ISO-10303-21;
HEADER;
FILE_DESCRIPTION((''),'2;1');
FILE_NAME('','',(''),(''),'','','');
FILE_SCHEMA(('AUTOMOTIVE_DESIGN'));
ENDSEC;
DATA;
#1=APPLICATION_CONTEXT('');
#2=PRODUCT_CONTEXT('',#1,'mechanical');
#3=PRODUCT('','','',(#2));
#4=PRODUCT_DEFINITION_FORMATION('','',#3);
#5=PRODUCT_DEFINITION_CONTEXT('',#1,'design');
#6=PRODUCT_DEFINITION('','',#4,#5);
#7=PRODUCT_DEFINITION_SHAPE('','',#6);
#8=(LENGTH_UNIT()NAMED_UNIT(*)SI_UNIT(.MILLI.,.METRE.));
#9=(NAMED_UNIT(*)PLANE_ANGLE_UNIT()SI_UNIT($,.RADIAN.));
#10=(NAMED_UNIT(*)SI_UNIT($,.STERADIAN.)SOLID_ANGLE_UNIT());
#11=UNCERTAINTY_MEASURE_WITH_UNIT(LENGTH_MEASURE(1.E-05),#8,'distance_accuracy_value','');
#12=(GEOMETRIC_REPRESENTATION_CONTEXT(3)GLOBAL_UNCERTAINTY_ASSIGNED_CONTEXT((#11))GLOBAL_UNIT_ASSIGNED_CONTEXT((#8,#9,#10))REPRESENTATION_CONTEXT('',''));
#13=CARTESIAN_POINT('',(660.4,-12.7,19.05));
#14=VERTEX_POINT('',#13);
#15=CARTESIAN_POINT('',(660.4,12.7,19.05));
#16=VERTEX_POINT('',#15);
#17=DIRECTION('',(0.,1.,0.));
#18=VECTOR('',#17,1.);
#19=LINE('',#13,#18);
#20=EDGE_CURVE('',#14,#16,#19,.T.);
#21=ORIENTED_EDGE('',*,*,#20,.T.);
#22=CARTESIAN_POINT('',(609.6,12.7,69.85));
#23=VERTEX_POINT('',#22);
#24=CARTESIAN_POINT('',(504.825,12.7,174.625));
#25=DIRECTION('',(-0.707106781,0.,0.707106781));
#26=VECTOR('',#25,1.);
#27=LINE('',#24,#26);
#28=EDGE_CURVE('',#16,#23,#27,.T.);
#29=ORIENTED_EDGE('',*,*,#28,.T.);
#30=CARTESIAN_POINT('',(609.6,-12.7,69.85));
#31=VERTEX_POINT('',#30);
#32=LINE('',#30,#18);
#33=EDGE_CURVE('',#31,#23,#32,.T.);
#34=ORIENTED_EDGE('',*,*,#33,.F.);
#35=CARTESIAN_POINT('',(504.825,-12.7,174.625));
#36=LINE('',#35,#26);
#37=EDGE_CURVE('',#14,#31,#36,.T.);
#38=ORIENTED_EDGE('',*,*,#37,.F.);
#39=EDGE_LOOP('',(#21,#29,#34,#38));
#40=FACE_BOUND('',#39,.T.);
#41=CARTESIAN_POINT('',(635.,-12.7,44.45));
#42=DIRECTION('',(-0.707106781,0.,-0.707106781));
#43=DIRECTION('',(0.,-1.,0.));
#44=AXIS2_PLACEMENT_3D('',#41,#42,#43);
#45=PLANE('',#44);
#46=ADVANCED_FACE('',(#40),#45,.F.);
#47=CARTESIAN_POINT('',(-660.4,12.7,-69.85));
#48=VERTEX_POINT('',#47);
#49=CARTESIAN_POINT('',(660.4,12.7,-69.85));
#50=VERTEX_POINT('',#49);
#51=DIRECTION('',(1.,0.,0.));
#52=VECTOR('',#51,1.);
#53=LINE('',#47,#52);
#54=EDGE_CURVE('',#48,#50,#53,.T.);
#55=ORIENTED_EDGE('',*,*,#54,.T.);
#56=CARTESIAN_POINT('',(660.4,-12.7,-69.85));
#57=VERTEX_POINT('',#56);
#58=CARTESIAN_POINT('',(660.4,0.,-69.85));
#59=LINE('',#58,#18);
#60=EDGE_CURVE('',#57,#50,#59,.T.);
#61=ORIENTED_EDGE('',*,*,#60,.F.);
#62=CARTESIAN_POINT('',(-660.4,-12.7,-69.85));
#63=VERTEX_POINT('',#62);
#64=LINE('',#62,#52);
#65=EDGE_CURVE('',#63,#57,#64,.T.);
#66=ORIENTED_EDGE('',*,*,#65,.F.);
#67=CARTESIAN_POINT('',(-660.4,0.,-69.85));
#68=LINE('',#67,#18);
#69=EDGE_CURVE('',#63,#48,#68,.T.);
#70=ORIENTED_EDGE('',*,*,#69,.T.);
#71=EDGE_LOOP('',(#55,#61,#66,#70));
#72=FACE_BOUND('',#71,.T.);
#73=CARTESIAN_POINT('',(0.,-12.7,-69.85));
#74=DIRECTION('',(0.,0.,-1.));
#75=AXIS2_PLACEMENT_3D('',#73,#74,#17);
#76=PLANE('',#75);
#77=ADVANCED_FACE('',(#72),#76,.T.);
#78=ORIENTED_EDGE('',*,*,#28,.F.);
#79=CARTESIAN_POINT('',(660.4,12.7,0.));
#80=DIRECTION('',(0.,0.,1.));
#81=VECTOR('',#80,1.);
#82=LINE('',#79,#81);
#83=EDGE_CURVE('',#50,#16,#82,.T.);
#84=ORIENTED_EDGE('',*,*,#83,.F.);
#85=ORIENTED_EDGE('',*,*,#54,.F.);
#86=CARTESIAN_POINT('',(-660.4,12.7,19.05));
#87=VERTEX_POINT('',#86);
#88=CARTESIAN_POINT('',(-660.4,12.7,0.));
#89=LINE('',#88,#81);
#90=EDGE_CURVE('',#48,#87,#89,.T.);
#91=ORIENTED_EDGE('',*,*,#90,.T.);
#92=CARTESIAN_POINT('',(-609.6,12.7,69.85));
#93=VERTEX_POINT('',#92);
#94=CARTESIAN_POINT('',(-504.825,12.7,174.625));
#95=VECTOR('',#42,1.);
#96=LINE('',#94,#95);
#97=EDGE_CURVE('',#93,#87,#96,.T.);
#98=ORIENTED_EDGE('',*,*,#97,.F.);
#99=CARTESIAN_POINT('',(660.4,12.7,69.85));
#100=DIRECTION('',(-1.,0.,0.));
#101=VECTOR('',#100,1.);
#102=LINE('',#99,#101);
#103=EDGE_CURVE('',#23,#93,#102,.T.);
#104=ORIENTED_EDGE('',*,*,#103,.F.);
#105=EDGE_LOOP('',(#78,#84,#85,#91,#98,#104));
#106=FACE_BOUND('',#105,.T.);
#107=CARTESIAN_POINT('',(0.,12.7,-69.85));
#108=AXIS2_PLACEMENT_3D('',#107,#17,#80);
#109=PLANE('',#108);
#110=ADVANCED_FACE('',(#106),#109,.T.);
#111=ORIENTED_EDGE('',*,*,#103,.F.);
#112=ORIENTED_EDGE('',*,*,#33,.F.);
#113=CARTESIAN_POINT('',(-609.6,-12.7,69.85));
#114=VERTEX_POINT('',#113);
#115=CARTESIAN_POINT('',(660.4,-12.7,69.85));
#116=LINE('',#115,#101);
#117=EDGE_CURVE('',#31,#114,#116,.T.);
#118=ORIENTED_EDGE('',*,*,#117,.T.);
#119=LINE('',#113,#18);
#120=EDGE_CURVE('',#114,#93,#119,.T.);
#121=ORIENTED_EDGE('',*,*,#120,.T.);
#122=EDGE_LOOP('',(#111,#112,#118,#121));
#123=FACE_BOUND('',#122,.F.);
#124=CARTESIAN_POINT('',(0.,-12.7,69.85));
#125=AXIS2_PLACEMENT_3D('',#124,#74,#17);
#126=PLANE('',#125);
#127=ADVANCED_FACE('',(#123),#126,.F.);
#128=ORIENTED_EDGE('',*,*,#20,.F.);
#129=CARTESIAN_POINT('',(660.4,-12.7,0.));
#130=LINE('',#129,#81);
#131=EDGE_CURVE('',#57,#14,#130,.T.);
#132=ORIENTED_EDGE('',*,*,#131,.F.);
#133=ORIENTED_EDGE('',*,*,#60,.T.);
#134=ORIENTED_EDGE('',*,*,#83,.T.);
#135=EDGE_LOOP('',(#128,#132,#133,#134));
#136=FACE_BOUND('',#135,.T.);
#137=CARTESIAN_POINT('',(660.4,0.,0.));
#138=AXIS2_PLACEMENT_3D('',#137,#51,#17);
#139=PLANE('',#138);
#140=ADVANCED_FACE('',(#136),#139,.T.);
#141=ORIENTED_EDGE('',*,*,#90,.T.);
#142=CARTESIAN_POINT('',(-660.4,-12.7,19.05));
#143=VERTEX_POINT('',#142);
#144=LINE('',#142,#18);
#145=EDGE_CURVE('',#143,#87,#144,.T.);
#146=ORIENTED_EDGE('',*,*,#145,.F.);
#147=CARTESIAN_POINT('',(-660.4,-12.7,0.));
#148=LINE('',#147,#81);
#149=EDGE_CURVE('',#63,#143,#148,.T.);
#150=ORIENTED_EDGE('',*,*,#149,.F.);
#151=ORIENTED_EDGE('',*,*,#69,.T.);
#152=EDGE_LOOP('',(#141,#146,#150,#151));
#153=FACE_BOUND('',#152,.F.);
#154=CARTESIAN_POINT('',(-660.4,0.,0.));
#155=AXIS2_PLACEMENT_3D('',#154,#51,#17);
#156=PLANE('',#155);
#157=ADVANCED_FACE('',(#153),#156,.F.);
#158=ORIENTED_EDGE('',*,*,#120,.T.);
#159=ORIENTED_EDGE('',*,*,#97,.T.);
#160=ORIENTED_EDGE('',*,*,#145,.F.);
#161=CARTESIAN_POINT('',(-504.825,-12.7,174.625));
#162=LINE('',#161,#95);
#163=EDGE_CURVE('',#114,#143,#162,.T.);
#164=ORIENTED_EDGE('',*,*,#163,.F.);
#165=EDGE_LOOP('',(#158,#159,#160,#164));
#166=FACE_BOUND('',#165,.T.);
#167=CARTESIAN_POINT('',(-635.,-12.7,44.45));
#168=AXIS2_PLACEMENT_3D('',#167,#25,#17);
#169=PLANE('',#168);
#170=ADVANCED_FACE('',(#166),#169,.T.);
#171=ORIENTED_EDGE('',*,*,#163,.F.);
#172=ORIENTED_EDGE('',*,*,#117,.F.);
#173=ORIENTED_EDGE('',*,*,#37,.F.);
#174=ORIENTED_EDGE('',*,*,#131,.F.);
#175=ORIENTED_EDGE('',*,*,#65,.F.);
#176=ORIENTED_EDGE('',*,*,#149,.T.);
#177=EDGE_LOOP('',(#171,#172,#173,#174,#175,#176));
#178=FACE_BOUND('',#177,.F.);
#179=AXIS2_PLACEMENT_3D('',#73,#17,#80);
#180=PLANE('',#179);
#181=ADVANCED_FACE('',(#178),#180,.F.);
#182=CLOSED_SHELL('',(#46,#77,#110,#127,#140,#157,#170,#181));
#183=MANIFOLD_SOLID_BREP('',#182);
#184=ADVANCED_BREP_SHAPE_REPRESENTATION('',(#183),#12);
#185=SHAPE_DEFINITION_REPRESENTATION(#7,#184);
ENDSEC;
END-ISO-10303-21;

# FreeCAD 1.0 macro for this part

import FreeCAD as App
import Part
import Sketcher
Q = App.Units.Quantity


def edges_at(feature, points):
    """Names of the edges that pass closest to the given points."""
    edges = feature.Shape.Edges
    near = lambda p: min(range(len(edges)), key=lambda i: edges[i].distToShape(Part.Vertex(*p))[0])
    return sorted({f"Edge{near(p) + 1}" for p in points})

doc = App.newDocument("Part")
body = doc.addObject("PartDesign::Body", "Body")

# Sketch on YZ plane
sketch1 = doc.addObject("Sketcher::SketchObject", "Sketch")
body.addObject(sketch1)
sketch1.AttachmentSupport = (doc.YZ_Plane, [""])
sketch1.MapMode = "FlatFace"
sketch1.addGeometry([
    Part.LineSegment(App.Vector(-12.7, 69.85, 0), App.Vector(-12.7, -69.85, 0)),
    Part.LineSegment(App.Vector(-12.7, -69.85, 0), App.Vector(12.7, -69.85, 0)),
    Part.LineSegment(App.Vector(12.7, -69.85, 0), App.Vector(12.7, 69.85, 0)),
    Part.LineSegment(App.Vector(12.7, 69.85, 0), App.Vector(-12.7, 69.85, 0)),
], False)
sketch1.addConstraint([
    Sketcher.Constraint("Coincident", 0, 2, 1, 1),
    Sketcher.Constraint("Coincident", 1, 2, 2, 1),
    Sketcher.Constraint("Coincident", 2, 2, 3, 1),
    Sketcher.Constraint("Coincident", 3, 2, 0, 1),
    Sketcher.Constraint("Vertical", 0),
    Sketcher.Constraint("Horizontal", 1),
    Sketcher.Constraint("Vertical", 2),
    Sketcher.Constraint("Horizontal", 3),
    Sketcher.Constraint("Symmetric", 0, 2, 2, 2, -1, 1),
    Sketcher.Constraint("DistanceX", 1, 1, 1, 2, Q("1 in")),
    Sketcher.Constraint("DistanceY", 0, 2, 0, 1, Q("5.5 in")),
])
pad1 = doc.addObject("PartDesign::Pad", "Pad")
body.addObject(pad1)
pad1.Profile = sketch1
pad1.Length = Q("52 in")
pad1.Midplane = True
doc.recompute()

chamfer = doc.addObject("PartDesign::Chamfer", "Chamfer")
body.addObject(chamfer)
chamfer.Base = (pad1, edges_at(pad1, [(660.4, 0, 69.85), (-660.4, 0, 69.85)]))
chamfer.Size = Q("2 in")

doc.recompute()
